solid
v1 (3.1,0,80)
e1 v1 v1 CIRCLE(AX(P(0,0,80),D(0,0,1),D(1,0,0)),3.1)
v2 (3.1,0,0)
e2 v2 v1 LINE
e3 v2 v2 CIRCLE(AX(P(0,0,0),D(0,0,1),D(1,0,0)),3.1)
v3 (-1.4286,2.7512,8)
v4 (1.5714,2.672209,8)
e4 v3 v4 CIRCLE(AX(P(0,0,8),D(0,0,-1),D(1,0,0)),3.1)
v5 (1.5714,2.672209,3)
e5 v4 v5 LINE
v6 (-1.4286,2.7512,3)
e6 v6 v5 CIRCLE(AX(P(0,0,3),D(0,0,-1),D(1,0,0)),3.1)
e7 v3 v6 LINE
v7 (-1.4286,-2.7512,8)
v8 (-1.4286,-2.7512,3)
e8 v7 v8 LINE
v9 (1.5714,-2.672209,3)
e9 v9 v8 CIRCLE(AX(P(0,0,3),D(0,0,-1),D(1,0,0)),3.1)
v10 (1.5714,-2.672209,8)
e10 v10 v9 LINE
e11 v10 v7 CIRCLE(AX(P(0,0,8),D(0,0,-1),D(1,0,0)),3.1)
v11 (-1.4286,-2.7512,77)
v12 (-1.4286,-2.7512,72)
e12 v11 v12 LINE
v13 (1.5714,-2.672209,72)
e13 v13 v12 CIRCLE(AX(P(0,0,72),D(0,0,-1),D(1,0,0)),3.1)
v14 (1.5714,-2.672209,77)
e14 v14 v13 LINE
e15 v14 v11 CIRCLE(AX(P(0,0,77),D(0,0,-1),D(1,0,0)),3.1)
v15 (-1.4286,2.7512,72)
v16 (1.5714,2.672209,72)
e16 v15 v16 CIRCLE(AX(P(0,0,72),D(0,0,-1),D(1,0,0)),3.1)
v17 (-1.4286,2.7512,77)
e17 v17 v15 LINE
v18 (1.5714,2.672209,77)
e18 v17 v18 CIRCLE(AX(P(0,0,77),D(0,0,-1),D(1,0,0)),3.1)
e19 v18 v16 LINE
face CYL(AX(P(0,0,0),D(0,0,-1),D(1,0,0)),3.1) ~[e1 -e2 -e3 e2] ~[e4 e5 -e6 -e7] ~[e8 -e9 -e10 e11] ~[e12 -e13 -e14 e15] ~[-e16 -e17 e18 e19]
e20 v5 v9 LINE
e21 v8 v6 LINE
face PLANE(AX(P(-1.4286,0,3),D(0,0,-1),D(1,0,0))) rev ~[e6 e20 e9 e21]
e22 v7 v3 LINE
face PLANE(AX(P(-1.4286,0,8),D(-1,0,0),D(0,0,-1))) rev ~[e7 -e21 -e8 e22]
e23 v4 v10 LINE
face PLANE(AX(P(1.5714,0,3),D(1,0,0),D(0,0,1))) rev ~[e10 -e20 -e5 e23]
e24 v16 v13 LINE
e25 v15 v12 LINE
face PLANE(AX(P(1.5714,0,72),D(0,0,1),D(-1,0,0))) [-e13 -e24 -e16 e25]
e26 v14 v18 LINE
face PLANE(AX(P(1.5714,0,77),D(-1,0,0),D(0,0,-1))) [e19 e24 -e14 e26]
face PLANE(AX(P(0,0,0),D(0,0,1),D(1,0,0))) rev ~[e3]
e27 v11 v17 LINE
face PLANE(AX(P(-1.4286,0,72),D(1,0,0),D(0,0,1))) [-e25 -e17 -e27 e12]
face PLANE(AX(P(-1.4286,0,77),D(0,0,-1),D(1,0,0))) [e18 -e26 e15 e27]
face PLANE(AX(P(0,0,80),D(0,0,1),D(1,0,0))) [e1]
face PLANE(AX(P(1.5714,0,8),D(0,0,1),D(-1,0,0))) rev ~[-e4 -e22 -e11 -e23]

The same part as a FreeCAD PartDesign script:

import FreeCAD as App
import Part
import Sketcher


def add_polygon(sketch, points):
    """Adds a closed chain of lines whose ends are joined by coincident constraints."""
    first, n = sketch.GeometryCount, len(points)
    for a, b in zip(points, points[1:] + points[:1]):
        sketch.addGeometry(Part.LineSegment(App.Vector(*a, 0), App.Vector(*b, 0)), False)
    for i in range(n):
        sketch.addConstraint(Sketcher.Constraint("Coincident", first + i, 2, first + (i + 1) % n, 1))

doc = App.newDocument("Part")
body = doc.addObject("PartDesign::Body", "Body")

# Sketch on XY plane
sketch1 = doc.addObject("Sketcher::SketchObject", "Sketch")
body.addObject(sketch1)
sketch1.AttachmentSupport = (doc.XY_Plane, [""])
sketch1.MapMode = "FlatFace"
sketch1.addGeometry(Part.Circle(App.Vector(0, 0, 0), App.Vector(0, 0, 1), 3.1), False)
sketch1.addConstraint([
    Sketcher.Constraint("Coincident", 0, 3, -1, 1),
    Sketcher.Constraint("Diameter", 0, 6.2),
])
pad1 = doc.addObject("PartDesign::Pad", "Pad")
body.addObject(pad1)
pad1.Profile = sketch1
pad1.Length = 80

# Sketch on XZ plane
sketch2 = doc.addObject("Sketcher::SketchObject", "Sketch001")
body.addObject(sketch2)
sketch2.AttachmentSupport = (doc.XZ_Plane, [""])
sketch2.MapMode = "FlatFace"
add_polygon(sketch2, [(-1.4, 72), (-1.4, 77), (1.6, 77), (1.6, 72)])  # lines 0-3
sketch2.addConstraint([
    Sketcher.Constraint("Vertical", 0),
    Sketcher.Constraint("Horizontal", 1),
    Sketcher.Constraint("Vertical", 2),
    Sketcher.Constraint("Horizontal", 3),
    Sketcher.Constraint("DistanceX", 1, 1, 1, 2, 3.0),
    Sketcher.Constraint("DistanceY", 0, 1, 0, 2, 5.0),
    Sketcher.Constraint("DistanceY", -1, 1, 0, 2, 77.0),
    Sketcher.Constraint("DistanceX", 0, 2, -1, 1, 1.4286),
])
pocket1 = doc.addObject("PartDesign::Pocket", "Pocket")
body.addObject(pocket1)
pocket1.Profile = sketch2
pocket1.Length = 200
pocket1.Midplane = True

# Sketch on XZ plane
sketch3 = doc.addObject("Sketcher::SketchObject", "Sketch002")
body.addObject(sketch3)
sketch3.AttachmentSupport = (doc.XZ_Plane, [""])
sketch3.MapMode = "FlatFace"
add_polygon(sketch3, [(1.6, 3), (-1.4, 3), (-1.4, 8), (1.6, 8)])  # lines 0-3
sketch3.addConstraint([
    Sketcher.Constraint("Horizontal", 0),
    Sketcher.Constraint("Vertical", 1),
    Sketcher.Constraint("Horizontal", 2),
    Sketcher.Constraint("Vertical", 3),
    Sketcher.Constraint("DistanceX", 0, 2, 0, 1, 3.0),
    Sketcher.Constraint("DistanceY", 1, 1, 1, 2, 5.0),
    Sketcher.Constraint("DistanceY", -1, 1, 0, 2, 3.0),
    Sketcher.Constraint("DistanceX", 0, 2, -1, 1, 1.4286),
])
pocket2 = doc.addObject("PartDesign::Pocket", "Pocket001")
body.addObject(pocket2)
pocket2.Profile = sketch3
pocket2.Length = 200
pocket2.Midplane = True

doc.recompute()
